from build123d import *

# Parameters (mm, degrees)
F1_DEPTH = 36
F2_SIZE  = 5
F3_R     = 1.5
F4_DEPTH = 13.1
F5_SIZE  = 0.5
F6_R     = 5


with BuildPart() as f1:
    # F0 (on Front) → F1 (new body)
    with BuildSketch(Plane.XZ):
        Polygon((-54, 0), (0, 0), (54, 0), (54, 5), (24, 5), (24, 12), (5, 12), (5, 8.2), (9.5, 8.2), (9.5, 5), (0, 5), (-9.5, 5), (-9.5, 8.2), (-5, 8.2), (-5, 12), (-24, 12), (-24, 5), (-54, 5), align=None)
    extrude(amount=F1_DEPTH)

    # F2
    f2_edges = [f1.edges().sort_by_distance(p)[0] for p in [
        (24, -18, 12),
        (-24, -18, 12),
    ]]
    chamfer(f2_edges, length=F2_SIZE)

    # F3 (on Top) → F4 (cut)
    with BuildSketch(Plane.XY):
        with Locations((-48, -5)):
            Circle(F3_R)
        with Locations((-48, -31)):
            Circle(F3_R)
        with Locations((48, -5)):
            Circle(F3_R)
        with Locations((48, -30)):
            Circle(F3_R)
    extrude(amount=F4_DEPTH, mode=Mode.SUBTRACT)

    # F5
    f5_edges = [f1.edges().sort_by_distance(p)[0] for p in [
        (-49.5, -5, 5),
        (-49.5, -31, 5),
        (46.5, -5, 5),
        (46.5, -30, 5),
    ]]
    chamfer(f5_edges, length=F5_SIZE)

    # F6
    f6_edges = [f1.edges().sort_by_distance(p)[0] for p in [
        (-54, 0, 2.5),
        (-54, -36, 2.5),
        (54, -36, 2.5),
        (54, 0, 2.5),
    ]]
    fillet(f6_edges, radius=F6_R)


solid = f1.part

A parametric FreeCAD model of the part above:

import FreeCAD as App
import Part
import Sketcher
Q = App.Units.Quantity


def edges_at(feature, points):
    """Names of the edges that pass closest to the given points."""
    edges = feature.Shape.Edges
    near = lambda p: min(range(len(edges)), key=lambda i: edges[i].distToShape(Part.Vertex(*p))[0])
    return sorted({f"Edge{near(p) + 1}" for p in points})

doc = App.newDocument("Part")
body = doc.addObject("PartDesign::Body", "Body")

# Sketch on XZ plane
sketch1 = body.newObject("Sketcher::SketchObject", "Sketch")
sketch1.AttachmentSupport = (doc.getObject("XZ_Plane"), [""])
sketch1.MapMode = "FlatFace"
sketch1.addGeometry([
    Part.LineSegment(App.Vector(-54, 0, 0), App.Vector(54, 0, 0)),  # 0
    Part.LineSegment(App.Vector(54, 0, 0), App.Vector(54, 5, 0)),  # 1
    Part.LineSegment(App.Vector(54, 5, 0), App.Vector(24, 5, 0)),  # 2
    Part.LineSegment(App.Vector(24, 5, 0), App.Vector(24, 12, 0)),  # 3
    Part.LineSegment(App.Vector(24, 12, 0), App.Vector(5, 12, 0)),  # 4
    Part.LineSegment(App.Vector(5, 12, 0), App.Vector(5, 8.2, 0)),  # 5
    Part.LineSegment(App.Vector(5, 8.2, 0), App.Vector(9.5, 8.2, 0)),  # 6
    Part.LineSegment(App.Vector(9.5, 8.2, 0), App.Vector(9.5, 5, 0)),  # 7
    Part.LineSegment(App.Vector(9.5, 5, 0), App.Vector(-9.5, 5, 0)),  # 8
    Part.LineSegment(App.Vector(-9.5, 5, 0), App.Vector(-9.5, 8.2, 0)),  # 9
    Part.LineSegment(App.Vector(-9.5, 8.2, 0), App.Vector(-5, 8.2, 0)),  # 10
    Part.LineSegment(App.Vector(-5, 8.2, 0), App.Vector(-5, 12, 0)),  # 11
    Part.LineSegment(App.Vector(-5, 12, 0), App.Vector(-24, 12, 0)),  # 12
    Part.LineSegment(App.Vector(-24, 12, 0), App.Vector(-24, 5, 0)),  # 13
    Part.LineSegment(App.Vector(-24, 5, 0), App.Vector(-54, 5, 0)),  # 14
    Part.LineSegment(App.Vector(-54, 5, 0), App.Vector(-54, 0, 0)),  # 15
], False)
sketch1.addConstraint([
    Sketcher.Constraint("Coincident", 0, 2, 1, 1),
    Sketcher.Constraint("Coincident", 1, 2, 2, 1),
    Sketcher.Constraint("Coincident", 2, 2, 3, 1),
    Sketcher.Constraint("Coincident", 3, 2, 4, 1),
    Sketcher.Constraint("Coincident", 4, 2, 5, 1),
    Sketcher.Constraint("Coincident", 5, 2, 6, 1),
    Sketcher.Constraint("Coincident", 6, 2, 7, 1),
    Sketcher.Constraint("Coincident", 7, 2, 8, 1),
    Sketcher.Constraint("Coincident", 8, 2, 9, 1),
    Sketcher.Constraint("Coincident", 9, 2, 10, 1),
    Sketcher.Constraint("Coincident", 10, 2, 11, 1),
    Sketcher.Constraint("Coincident", 11, 2, 12, 1),
    Sketcher.Constraint("Coincident", 12, 2, 13, 1),
    Sketcher.Constraint("Coincident", 13, 2, 14, 1),
    Sketcher.Constraint("Coincident", 14, 2, 15, 1),
    Sketcher.Constraint("Coincident", 15, 2, 0, 1),
    Sketcher.Constraint("Horizontal", 0),
    Sketcher.Constraint("Vertical", 1),
    Sketcher.Constraint("Horizontal", 2),
    Sketcher.Constraint("Vertical", 3),
    Sketcher.Constraint("Horizontal", 4),
    Sketcher.Constraint("Vertical", 5),
    Sketcher.Constraint("Horizontal", 6),
    Sketcher.Constraint("Vertical", 7),
    Sketcher.Constraint("Horizontal", 8),
    Sketcher.Constraint("Vertical", 9),
    Sketcher.Constraint("Horizontal", 10),
    Sketcher.Constraint("Vertical", 11),
    Sketcher.Constraint("Horizontal", 12),
    Sketcher.Constraint("Vertical", 13),
    Sketcher.Constraint("Horizontal", 14),
    Sketcher.Constraint("Vertical", 15),
    Sketcher.Constraint("Symmetric", 0, 2, 15, 2, -1, 1),
    Sketcher.Constraint("Symmetric", 6, 2, 9, 2, -2),
    Sketcher.Constraint("Symmetric", 4, 2, 11, 2, -2),
    Sketcher.Constraint("Symmetric", 2, 2, 13, 2, -2),
    Sketcher.Constraint("Horizontal", 2, 2, 7, 2),
    Sketcher.Constraint("Equal", 4, 8),
    Sketcher.Constraint("DistanceX", 0, 1, 0, 2, Q("108 mm")),
    Sketcher.Constraint("DistanceX", 2, 2, 2, 1, Q("30 mm")),
    Sketcher.Constraint("DistanceX", 4, 2, 4, 1, Q("19 mm")),
    Sketcher.Constraint("DistanceY", 1, 1, 1, 2, Q("5 mm")),
    Sketcher.Constraint("DistanceY", 3, 1, 3, 2, Q("7 mm")),
    Sketcher.Constraint("DistanceY", 5, 2, 5, 1, Q("3.8 mm")),
])
pad1 = body.newObject("PartDesign::Pad", "Pad")
pad1.Profile = sketch1
pad1.Length = 36
doc.recompute()

chamfer = body.newObject("PartDesign::Chamfer", "Chamfer")
chamfer.Base = (pad1, edges_at(pad1, [(24, -18, 12), (-24, -18, 12)]))
chamfer.Size = 5

# Sketch on XY plane
sketch2 = body.newObject("Sketcher::SketchObject", "Sketch001")
sketch2.AttachmentSupport = (doc.getObject("XY_Plane"), [""])
sketch2.MapMode = "FlatFace"
sketch2.addGeometry([
    Part.Circle(App.Vector(-48, -5, 0), App.Vector(0, 0, 1), 1.5),
    Part.Circle(App.Vector(-48, -31, 0), App.Vector(0, 0, 1), 1.5),
    Part.Circle(App.Vector(48, -5, 0), App.Vector(0, 0, 1), 1.5),
    Part.Circle(App.Vector(48, -30, 0), App.Vector(0, 0, 1), 1.5),
], False)
sketch2.addConstraint([
    Sketcher.Constraint("Equal", 0, 1),
    Sketcher.Constraint("Equal", 1, 2),
    Sketcher.Constraint("Equal", 2, 3),
    Sketcher.Constraint("Symmetric", 0, 3, 2, 3, -2),
    Sketcher.Constraint("Vertical", 0, 3, 1, 3),
    Sketcher.Constraint("Vertical", 2, 3, 3, 3),
    Sketcher.Constraint("Diameter", 0, Q("3 mm")),
    Sketcher.Constraint("DistanceX", 0, 3, -1, 1, Q("48 mm")),
    Sketcher.Constraint("DistanceY", 0, 3, -1, 1, Q("5 mm")),
    Sketcher.Constraint("DistanceY", 1, 3, -1, 1, Q("31 mm")),
    Sketcher.Constraint("DistanceY", 3, 3, -1, 1, Q("30 mm")),
])
pocket1 = body.newObject("PartDesign::Pocket", "Pocket")
pocket1.Profile = sketch2
pocket1.Length = 13.1
pocket1.Reversed = True
doc.recompute()

chamfer2 = body.newObject("PartDesign::Chamfer", "Chamfer001")
chamfer2.Base = (pocket1, edges_at(pocket1, [
    (-49.5, -5, 5),
    (-49.5, -31, 5),
    (46.5, -5, 5),
    (46.5, -30, 5),
]))
chamfer2.Size = 0.5
doc.recompute()

fillet = body.newObject("PartDesign::Fillet", "Fillet")
fillet.Base = (chamfer2, edges_at(chamfer2, [
    (-54, 0, 2.5),
    (-54, -36, 2.5),
    (54, -36, 2.5),
    (54, 0, 2.5),
]))
fillet.Radius = 5

doc.recompute()
